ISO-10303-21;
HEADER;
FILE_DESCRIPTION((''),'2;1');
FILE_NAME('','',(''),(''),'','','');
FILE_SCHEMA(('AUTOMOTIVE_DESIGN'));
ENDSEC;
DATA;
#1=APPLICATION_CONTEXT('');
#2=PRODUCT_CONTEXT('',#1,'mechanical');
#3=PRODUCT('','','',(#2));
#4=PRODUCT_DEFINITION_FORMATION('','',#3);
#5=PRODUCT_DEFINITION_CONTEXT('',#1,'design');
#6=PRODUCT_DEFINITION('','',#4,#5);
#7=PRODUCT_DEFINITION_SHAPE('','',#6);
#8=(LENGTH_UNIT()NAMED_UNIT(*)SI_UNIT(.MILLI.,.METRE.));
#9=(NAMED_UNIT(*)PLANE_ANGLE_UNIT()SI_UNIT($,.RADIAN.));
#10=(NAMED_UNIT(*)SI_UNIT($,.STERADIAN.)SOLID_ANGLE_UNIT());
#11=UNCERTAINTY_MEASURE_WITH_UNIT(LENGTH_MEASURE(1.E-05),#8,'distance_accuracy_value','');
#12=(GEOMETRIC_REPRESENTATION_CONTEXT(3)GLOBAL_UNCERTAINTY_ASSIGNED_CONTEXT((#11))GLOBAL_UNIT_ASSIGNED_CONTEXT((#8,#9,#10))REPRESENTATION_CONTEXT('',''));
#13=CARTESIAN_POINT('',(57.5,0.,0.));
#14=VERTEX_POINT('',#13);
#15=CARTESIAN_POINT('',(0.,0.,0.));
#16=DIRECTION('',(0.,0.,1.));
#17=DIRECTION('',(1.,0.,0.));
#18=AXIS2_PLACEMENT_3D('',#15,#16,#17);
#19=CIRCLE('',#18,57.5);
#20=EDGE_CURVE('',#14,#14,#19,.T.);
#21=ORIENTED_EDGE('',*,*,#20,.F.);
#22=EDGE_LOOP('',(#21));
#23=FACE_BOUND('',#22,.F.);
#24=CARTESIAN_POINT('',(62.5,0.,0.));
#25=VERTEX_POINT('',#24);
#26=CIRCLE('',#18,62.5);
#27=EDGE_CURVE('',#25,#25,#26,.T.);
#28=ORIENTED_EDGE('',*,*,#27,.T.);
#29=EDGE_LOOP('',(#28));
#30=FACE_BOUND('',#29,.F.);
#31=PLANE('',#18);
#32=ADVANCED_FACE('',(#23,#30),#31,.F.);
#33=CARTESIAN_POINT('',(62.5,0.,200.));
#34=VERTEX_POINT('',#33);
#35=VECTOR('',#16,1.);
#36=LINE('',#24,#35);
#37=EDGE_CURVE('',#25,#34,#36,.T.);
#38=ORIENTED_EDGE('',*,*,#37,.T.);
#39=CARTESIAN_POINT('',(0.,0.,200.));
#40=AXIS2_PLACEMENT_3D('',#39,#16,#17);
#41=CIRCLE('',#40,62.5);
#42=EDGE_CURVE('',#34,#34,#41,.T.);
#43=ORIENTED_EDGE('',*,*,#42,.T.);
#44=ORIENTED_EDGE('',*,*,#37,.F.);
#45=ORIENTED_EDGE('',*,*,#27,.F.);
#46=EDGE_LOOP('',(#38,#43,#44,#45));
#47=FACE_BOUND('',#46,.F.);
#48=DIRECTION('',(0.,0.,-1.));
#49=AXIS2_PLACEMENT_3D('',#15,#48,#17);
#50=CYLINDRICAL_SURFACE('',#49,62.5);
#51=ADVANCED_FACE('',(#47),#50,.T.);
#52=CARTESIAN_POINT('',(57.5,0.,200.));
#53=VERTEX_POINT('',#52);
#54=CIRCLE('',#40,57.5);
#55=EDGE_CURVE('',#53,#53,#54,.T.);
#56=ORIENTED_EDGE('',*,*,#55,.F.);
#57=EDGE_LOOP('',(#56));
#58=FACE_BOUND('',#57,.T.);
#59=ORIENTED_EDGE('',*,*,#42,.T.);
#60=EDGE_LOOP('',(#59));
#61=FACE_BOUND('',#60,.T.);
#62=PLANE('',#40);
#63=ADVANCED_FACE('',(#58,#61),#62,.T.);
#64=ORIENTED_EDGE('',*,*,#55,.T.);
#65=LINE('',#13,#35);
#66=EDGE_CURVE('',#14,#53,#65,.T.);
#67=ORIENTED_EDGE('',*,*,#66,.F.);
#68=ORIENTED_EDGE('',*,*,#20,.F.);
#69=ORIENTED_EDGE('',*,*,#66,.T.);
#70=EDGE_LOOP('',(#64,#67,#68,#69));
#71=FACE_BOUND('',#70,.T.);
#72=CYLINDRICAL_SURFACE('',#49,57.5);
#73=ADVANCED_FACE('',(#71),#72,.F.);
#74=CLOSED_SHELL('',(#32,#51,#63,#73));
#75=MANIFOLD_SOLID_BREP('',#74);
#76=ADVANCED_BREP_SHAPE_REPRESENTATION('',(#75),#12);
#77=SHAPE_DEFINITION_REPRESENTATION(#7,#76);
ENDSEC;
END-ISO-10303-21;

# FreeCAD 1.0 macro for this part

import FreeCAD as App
import Part
import Sketcher
Q = App.Units.Quantity

doc = App.newDocument("Part")
params = doc.addObject("Spreadsheet::Sheet", "Params")
for row, (alias, value) in enumerate([
    ("sketch1_diameter", "125 mm"),
    ("sketch1_diameter2", "115 mm"),
    ("pad1_length", "200 mm"),
], start=1):
    params.set(f"A{row}", alias)
    params.set(f"B{row}", "=" + value)
    params.setAlias(f"B{row}", alias)

body = doc.addObject("PartDesign::Body", "Body")

sketch1 = doc.addObject("Sketcher::SketchObject", "Sketch")
body.addObject(sketch1)
sketch1.AttachmentSupport = (doc.XY_Plane, [""])
sketch1.MapMode = "FlatFace"
sketch1.addGeometry([
    Part.Circle(App.Vector(0, 0, 0), App.Vector(0, 0, 1), 62),
    Part.Circle(App.Vector(0, 0, 0), App.Vector(0, 0, 1), 58),
], False)
sketch1.addConstraint([
    Sketcher.Constraint("Coincident", 0, 3, -1, 1),
    Sketcher.Constraint("Coincident", 1, 3, -1, 1),
    Sketcher.Constraint("Diameter", 0, Q("125 mm")),
    Sketcher.Constraint("Diameter", 1, Q("115 mm")),
])
sketch1.setExpression("Constraints[2]", "Params.sketch1_diameter")
sketch1.setExpression("Constraints[3]", "Params.sketch1_diameter2")
pad1 = doc.addObject("PartDesign::Pad", "Pad")
body.addObject(pad1)
pad1.Profile = sketch1
pad1.setExpression("Length", "Params.pad1_length")

doc.recompute()
